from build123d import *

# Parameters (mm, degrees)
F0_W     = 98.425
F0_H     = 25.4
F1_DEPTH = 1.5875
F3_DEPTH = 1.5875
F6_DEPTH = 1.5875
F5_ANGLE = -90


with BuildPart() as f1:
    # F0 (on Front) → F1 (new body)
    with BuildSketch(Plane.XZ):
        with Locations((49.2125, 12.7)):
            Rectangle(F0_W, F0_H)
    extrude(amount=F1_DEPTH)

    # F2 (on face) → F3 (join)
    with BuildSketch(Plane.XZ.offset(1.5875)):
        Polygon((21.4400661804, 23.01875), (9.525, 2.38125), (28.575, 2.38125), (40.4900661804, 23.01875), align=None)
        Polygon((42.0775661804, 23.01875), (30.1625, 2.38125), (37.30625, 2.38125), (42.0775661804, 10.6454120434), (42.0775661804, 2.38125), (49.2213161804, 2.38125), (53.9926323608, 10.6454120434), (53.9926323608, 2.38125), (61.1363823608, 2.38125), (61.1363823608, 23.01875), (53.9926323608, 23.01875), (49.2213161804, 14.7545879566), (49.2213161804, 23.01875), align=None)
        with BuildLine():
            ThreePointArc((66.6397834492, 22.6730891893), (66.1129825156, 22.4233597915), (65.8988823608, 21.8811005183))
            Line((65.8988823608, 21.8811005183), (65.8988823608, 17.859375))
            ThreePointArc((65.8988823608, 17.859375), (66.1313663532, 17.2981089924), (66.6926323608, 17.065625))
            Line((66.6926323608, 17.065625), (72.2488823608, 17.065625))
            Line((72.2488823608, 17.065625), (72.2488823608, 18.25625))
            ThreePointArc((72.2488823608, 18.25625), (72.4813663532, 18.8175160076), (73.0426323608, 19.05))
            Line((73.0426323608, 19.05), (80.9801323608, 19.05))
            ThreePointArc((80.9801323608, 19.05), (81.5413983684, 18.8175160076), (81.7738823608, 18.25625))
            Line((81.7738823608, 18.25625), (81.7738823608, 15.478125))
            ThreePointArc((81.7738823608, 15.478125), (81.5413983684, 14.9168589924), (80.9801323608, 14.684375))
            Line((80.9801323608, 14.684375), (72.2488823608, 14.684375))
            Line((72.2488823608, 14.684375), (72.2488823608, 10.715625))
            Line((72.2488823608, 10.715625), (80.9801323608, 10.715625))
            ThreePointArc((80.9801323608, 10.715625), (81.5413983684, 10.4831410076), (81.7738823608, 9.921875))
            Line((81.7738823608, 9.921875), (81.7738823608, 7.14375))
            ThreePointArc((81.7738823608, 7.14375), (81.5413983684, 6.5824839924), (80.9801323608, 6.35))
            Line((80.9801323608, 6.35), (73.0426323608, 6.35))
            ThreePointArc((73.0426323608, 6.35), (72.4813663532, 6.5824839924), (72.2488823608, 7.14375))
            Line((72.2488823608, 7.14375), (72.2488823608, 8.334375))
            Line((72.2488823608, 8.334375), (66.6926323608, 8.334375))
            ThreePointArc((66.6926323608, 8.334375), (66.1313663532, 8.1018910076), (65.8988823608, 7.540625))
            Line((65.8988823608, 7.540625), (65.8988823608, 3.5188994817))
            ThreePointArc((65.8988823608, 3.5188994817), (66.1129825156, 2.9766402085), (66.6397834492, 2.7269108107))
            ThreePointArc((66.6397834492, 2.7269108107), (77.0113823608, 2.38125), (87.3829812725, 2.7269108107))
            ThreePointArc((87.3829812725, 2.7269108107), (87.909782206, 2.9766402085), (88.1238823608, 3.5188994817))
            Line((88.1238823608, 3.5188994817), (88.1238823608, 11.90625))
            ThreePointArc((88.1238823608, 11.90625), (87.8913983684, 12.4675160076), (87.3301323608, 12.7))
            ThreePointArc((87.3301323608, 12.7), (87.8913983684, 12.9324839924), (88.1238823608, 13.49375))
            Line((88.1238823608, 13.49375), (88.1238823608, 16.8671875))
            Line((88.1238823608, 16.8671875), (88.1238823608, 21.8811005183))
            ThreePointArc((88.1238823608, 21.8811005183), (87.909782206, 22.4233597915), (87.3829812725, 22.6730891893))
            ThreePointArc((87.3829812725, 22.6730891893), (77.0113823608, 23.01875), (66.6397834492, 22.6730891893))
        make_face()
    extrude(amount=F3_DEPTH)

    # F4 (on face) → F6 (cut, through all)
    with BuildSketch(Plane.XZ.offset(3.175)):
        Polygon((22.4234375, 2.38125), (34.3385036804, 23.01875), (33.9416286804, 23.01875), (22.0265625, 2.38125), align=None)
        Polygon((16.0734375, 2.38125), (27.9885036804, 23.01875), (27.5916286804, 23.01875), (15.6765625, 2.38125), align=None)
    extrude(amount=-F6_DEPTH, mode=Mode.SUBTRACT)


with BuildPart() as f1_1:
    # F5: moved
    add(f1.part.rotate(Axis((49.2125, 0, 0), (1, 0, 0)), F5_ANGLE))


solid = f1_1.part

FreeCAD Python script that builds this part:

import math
import FreeCAD as App
import Part
import Sketcher
Q = App.Units.Quantity


def add_polygon(sketch, points):
    """Adds a closed chain of lines whose ends are joined by coincident constraints."""
    first, n = sketch.GeometryCount, len(points)
    for a, b in zip(points, points[1:] + points[:1]):
        sketch.addGeometry(Part.LineSegment(App.Vector(*a, 0), App.Vector(*b, 0)), False)
    for i in range(n):
        sketch.addConstraint(Sketcher.Constraint("Coincident", first + i, 2, first + (i + 1) % n, 1))

doc = App.newDocument("Part")
params = doc.addObject("Spreadsheet::Sheet", "Params")
for row, (alias, value) in enumerate([
    ("sketch1_height", "1 in"),
    ("sketch1_width", "3.875 in"),
    ("pad1_length", "0.0625 in"),
    ("sketch2_radius", "0.03125 in"),
    ("sketch2_width", "0.75 in"),
    ("sketch2_width2", "0.28125 in"),
    ("sketch2_width3", "0.21875 in"),
    ("sketch2_width4", "0.3125 in"),
    ("pad2_length", "0.0625 in"),
    ("sketch3_width", "0.015625 in"),
    ("pocket1_length", "0.0625 in"),
], start=1):
    params.set(f"A{row}", alias)
    params.set(f"B{row}", "=" + value)
    params.setAlias(f"B{row}", alias)

body = doc.addObject("PartDesign::Body", "Body")

sketch1 = doc.addObject("Sketcher::SketchObject", "Sketch")
body.addObject(sketch1)
sketch1.AttachmentSupport = (doc.XZ_Plane, [""])
sketch1.MapMode = "FlatFace"
add_polygon(sketch1, [(0, 25.4), (0, 0), (98.425, 0), (98.425, 25.4)])
sketch1.addConstraint(Sketcher.Constraint("Vertical", 0))
sketch1.addConstraint(Sketcher.Constraint("Horizontal", 1))
sketch1.addConstraint(Sketcher.Constraint("Vertical", 2))
sketch1.addConstraint(Sketcher.Constraint("Horizontal", 3))
sketch1.addConstraint(Sketcher.Constraint("Coincident", 0, 2, -1, 1))
sketch1.addConstraint(Sketcher.Constraint("DistanceY", 0, 2, 0, 1, Q("1 in")))
sketch1.addConstraint(Sketcher.Constraint("DistanceX", 1, 1, 1, 2, Q("3.875 in")))
sketch1.setExpression("Constraints[9]", "Params.sketch1_height")
sketch1.setExpression("Constraints[10]", "Params.sketch1_width")
pad1 = doc.addObject("PartDesign::Pad", "Pad")
body.addObject(pad1)
pad1.Profile = sketch1
pad1.setExpression("Length", "Params.pad1_length")

sketch2 = doc.addObject("Sketcher::SketchObject", "Sketch001")
body.addObject(sketch2)
sketch2.AttachmentSupport = (doc.XZ_Plane, [""])
sketch2.MapMode = "FlatFace"
sketch2.AttachmentOffset = App.Placement(App.Vector(0, 0, 0.0625 * 25.4), App.Rotation())
add_polygon(sketch2, [(21.440066, 23.01875), (9.525, 2.38125), (28.575, 2.38125), (40.490066, 23.01875)])
add_polygon(sketch2, [(42.077566, 23.01875), (30.1625, 2.38125), (37.30625, 2.38125), (42.077566, 10.645412), (42.077566, 2.38125), (49.221316, 2.38125), (53.992632, 10.645412), (53.992632, 2.38125), (61.136382, 2.38125), (61.136382, 23.01875), (53.992632, 23.01875), (49.221316, 14.754588), (49.221316, 23.01875)])
sketch2.addGeometry(Part.ArcOfCircle(Part.Circle(App.Vector(66.692632, 21.881101, 0), App.Vector(0, 0, 1), 0.79375), math.radians(93.817652), math.radians(180)), False)
sketch2.addGeometry(Part.LineSegment(App.Vector(65.898882, 21.881101, 0), App.Vector(65.898882, 17.859375, 0)), False)
sketch2.addGeometry(Part.ArcOfCircle(Part.Circle(App.Vector(66.692632, 17.859375, 0), App.Vector(0, 0, 1), 0.79375), math.radians(180), math.radians(270)), False)
sketch2.addGeometry(Part.LineSegment(App.Vector(66.692632, 17.065625, 0), App.Vector(72.248882, 17.065625, 0)), False)
sketch2.addGeometry(Part.LineSegment(App.Vector(72.248882, 17.065625, 0), App.Vector(72.248882, 18.25625, 0)), False)
sketch2.addGeometry(Part.ArcOfCircle(Part.Circle(App.Vector(73.042632, 18.25625, 0), App.Vector(0, 0, 1), 0.79375), math.radians(90), math.radians(180)), False)
sketch2.addGeometry(Part.LineSegment(App.Vector(73.042632, 19.05, 0), App.Vector(80.980132, 19.05, 0)), False)
sketch2.addGeometry(Part.ArcOfCircle(Part.Circle(App.Vector(80.980132, 18.25625, 0), App.Vector(0, 0, 1), 0.79375), math.radians(0), math.radians(90)), False)
sketch2.addGeometry(Part.LineSegment(App.Vector(81.773882, 18.25625, 0), App.Vector(81.773882, 15.478125, 0)), False)
sketch2.addGeometry(Part.ArcOfCircle(Part.Circle(App.Vector(80.980132, 15.478125, 0), App.Vector(0, 0, 1), 0.79375), math.radians(-90), math.radians(0)), False)
sketch2.addGeometry(Part.LineSegment(App.Vector(80.980132, 14.684375, 0), App.Vector(72.248882, 14.684375, 0)), False)
sketch2.addGeometry(Part.LineSegment(App.Vector(72.248882, 14.684375, 0), App.Vector(72.248882, 10.715625, 0)), False)
sketch2.addGeometry(Part.LineSegment(App.Vector(72.248882, 10.715625, 0), App.Vector(80.980132, 10.715625, 0)), False)
sketch2.addGeometry(Part.ArcOfCircle(Part.Circle(App.Vector(80.980132, 9.921875, 0), App.Vector(0, 0, 1), 0.79375), math.radians(0), math.radians(90)), False)
sketch2.addGeometry(Part.LineSegment(App.Vector(81.773882, 9.921875, 0), App.Vector(81.773882, 7.14375, 0)), False)
sketch2.addGeometry(Part.ArcOfCircle(Part.Circle(App.Vector(80.980132, 7.14375, 0), App.Vector(0, 0, 1), 0.79375), math.radians(-90), math.radians(0)), False)
sketch2.addGeometry(Part.LineSegment(App.Vector(80.980132, 6.35, 0), App.Vector(73.042632, 6.35, 0)), False)
sketch2.addGeometry(Part.ArcOfCircle(Part.Circle(App.Vector(73.042632, 7.14375, 0), App.Vector(0, 0, 1), 0.79375), math.radians(180), math.radians(270)), False)
sketch2.addGeometry(Part.LineSegment(App.Vector(72.248882, 7.14375, 0), App.Vector(72.248882, 8.334375, 0)), False)
sketch2.addGeometry(Part.LineSegment(App.Vector(72.248882, 8.334375, 0), App.Vector(66.692632, 8.334375, 0)), False)
sketch2.addGeometry(Part.ArcOfCircle(Part.Circle(App.Vector(66.692632, 7.540625, 0), App.Vector(0, 0, 1), 0.79375), math.radians(90), math.radians(180)), False)
sketch2.addGeometry(Part.LineSegment(App.Vector(65.898882, 7.540625, 0), App.Vector(65.898882, 3.518899, 0)), False)
sketch2.addGeometry(Part.ArcOfCircle(Part.Circle(App.Vector(66.692632, 3.518899, 0), App.Vector(0, 0, 1), 0.79375), math.radians(180), math.radians(266.182348)), False)
sketch2.addGeometry(Part.ArcOfCircle(Part.Circle(App.Vector(77.011382, 158.154687, 0), App.Vector(0, 0, 1), 155.773437), math.radians(-93.817652), math.radians(-86.182348)), False)
sketch2.addGeometry(Part.ArcOfCircle(Part.Circle(App.Vector(87.330132, 3.518899, 0), App.Vector(0, 0, 1), 0.79375), math.radians(-86.182348), math.radians(0)), False)
sketch2.addGeometry(Part.LineSegment(App.Vector(88.123882, 3.518899, 0), App.Vector(88.123882, 11.90625, 0)), False)
sketch2.addGeometry(Part.ArcOfCircle(Part.Circle(App.Vector(87.330132, 11.90625, 0), App.Vector(0, 0, 1), 0.79375), math.radians(0), math.radians(90)), False)
sketch2.addGeometry(Part.ArcOfCircle(Part.Circle(App.Vector(87.330132, 13.49375, 0), App.Vector(0, 0, 1), 0.79375), math.radians(-90), math.radians(0)), False)
sketch2.addGeometry(Part.LineSegment(App.Vector(88.123882, 13.49375, 0), App.Vector(88.123882, 21.881101, 0)), False)
sketch2.addGeometry(Part.ArcOfCircle(Part.Circle(App.Vector(87.330132, 21.881101, 0), App.Vector(0, 0, 1), 0.79375), math.radians(0), math.radians(86.182348)), False)
sketch2.addGeometry(Part.ArcOfCircle(Part.Circle(App.Vector(77.011382, -132.754687, 0), App.Vector(0, 0, 1), 155.773437), math.radians(86.182348), math.radians(93.817652)), False)
sketch2.addConstraint(Sketcher.Constraint("Tangent", 17, 2, 18, 1))
sketch2.addConstraint(Sketcher.Constraint("Tangent", 18, 2, 19, 1))
sketch2.addConstraint(Sketcher.Constraint("Tangent", 19, 2, 20, 1))
sketch2.addConstraint(Sketcher.Constraint("Coincident", 20, 2, 21, 1))
sketch2.addConstraint(Sketcher.Constraint("Tangent", 21, 2, 22, 2))
sketch2.addConstraint(Sketcher.Constraint("Tangent", 22, 1, 23, 1))
sketch2.addConstraint(Sketcher.Constraint("Tangent", 23, 2, 24, 2))
sketch2.addConstraint(Sketcher.Constraint("Tangent", 24, 1, 25, 1))
sketch2.addConstraint(Sketcher.Constraint("Tangent", 25, 2, 26, 2))
sketch2.addConstraint(Sketcher.Constraint("Tangent", 26, 1, 27, 1))
sketch2.addConstraint(Sketcher.Constraint("Coincident", 27, 2, 28, 1))
sketch2.addConstraint(Sketcher.Constraint("Coincident", 28, 2, 29, 1))
sketch2.addConstraint(Sketcher.Constraint("Tangent", 29, 2, 30, 2))
sketch2.addConstraint(Sketcher.Constraint("Tangent", 30, 1, 31, 1))
sketch2.addConstraint(Sketcher.Constraint("Tangent", 31, 2, 32, 2))
sketch2.addConstraint(Sketcher.Constraint("Tangent", 32, 1, 33, 1))
sketch2.addConstraint(Sketcher.Constraint("Tangent", 33, 2, 34, 2))
sketch2.addConstraint(Sketcher.Constraint("Tangent", 34, 1, 35, 1))
sketch2.addConstraint(Sketcher.Constraint("Coincident", 35, 2, 36, 1))
sketch2.addConstraint(Sketcher.Constraint("Tangent", 36, 2, 37, 1))
sketch2.addConstraint(Sketcher.Constraint("Tangent", 37, 2, 38, 1))
sketch2.addConstraint(Sketcher.Constraint("Tangent", 38, 2, 39, 1))
sketch2.addConstraint(Sketcher.Constraint("Tangent", 39, 2, 40, 1))
sketch2.addConstraint(Sketcher.Constraint("Tangent", 40, 2, 41, 1))
sketch2.addConstraint(Sketcher.Constraint("Tangent", 41, 2, 42, 1))
sketch2.addConstraint(Sketcher.Constraint("Tangent", 42, 2, 43, 1))
sketch2.addConstraint(Sketcher.Constraint("Tangent", 43, 2, 44, 1))
sketch2.addConstraint(Sketcher.Constraint("Tangent", 44, 2, 45, 1))
sketch2.addConstraint(Sketcher.Constraint("Tangent", 45, 2, 46, 1))
sketch2.addConstraint(Sketcher.Constraint("Tangent", 46, 2, 47, 1))
sketch2.addConstraint(Sketcher.Constraint("Tangent", 47, 2, 17, 1))
sketch2.addConstraint(Sketcher.Constraint("Horizontal", 1))
sketch2.addConstraint(Sketcher.Constraint("Horizontal", 3))
sketch2.addConstraint(Sketcher.Constraint("Horizontal", 5))
sketch2.addConstraint(Sketcher.Constraint("Vertical", 7))
sketch2.addConstraint(Sketcher.Constraint("Horizontal", 8))
sketch2.addConstraint(Sketcher.Constraint("Vertical", 10))
sketch2.addConstraint(Sketcher.Constraint("Horizontal", 11))
sketch2.addConstraint(Sketcher.Constraint("Vertical", 12))
sketch2.addConstraint(Sketcher.Constraint("Horizontal", 13))
sketch2.addConstraint(Sketcher.Constraint("Vertical", 15))
sketch2.addConstraint(Sketcher.Constraint("Horizontal", 16))
sketch2.addConstraint(Sketcher.Constraint("Vertical", 18))
sketch2.addConstraint(Sketcher.Constraint("Horizontal", 20))
sketch2.addConstraint(Sketcher.Constraint("Vertical", 21))
sketch2.addConstraint(Sketcher.Constraint("Horizontal", 23))
sketch2.addConstraint(Sketcher.Constraint("Vertical", 25))
sketch2.addConstraint(Sketcher.Constraint("Horizontal", 27))
sketch2.addConstraint(Sketcher.Constraint("Vertical", 28))
sketch2.addConstraint(Sketcher.Constraint("Horizontal", 29))
sketch2.addConstraint(Sketcher.Constraint("Vertical", 31))
sketch2.addConstraint(Sketcher.Constraint("Horizontal", 33))
sketch2.addConstraint(Sketcher.Constraint("Vertical", 35))
sketch2.addConstraint(Sketcher.Constraint("Horizontal", 36))
sketch2.addConstraint(Sketcher.Constraint("Vertical", 38))
sketch2.addConstraint(Sketcher.Constraint("Vertical", 42))
sketch2.addConstraint(Sketcher.Constraint("Vertical", 45))
sketch2.addConstraint(Sketcher.Constraint("Equal", 17, 19))
sketch2.addConstraint(Sketcher.Constraint("Equal", 19, 22))
sketch2.addConstraint(Sketcher.Constraint("Equal", 22, 24))
sketch2.addConstraint(Sketcher.Constraint("Equal", 24, 26))
sketch2.addConstraint(Sketcher.Constraint("Equal", 26, 30))
sketch2.addConstraint(Sketcher.Constraint("Equal", 30, 32))
sketch2.addConstraint(Sketcher.Constraint("Equal", 32, 34))
sketch2.addConstraint(Sketcher.Constraint("Equal", 34, 37))
sketch2.addConstraint(Sketcher.Constraint("Equal", 37, 39))
sketch2.addConstraint(Sketcher.Constraint("Equal", 39, 41))
sketch2.addConstraint(Sketcher.Constraint("Equal", 41, 43))
sketch2.addConstraint(Sketcher.Constraint("Equal", 43, 44))
sketch2.addConstraint(Sketcher.Constraint("Equal", 44, 46))
sketch2.addConstraint(Sketcher.Constraint("Equal", 40, 47))
sketch2.addConstraint(Sketcher.Constraint("Parallel", 0, 2))
sketch2.addConstraint(Sketcher.Constraint("Parallel", 2, 4))
sketch2.addConstraint(Sketcher.Constraint("Parallel", 4, 6))
sketch2.addConstraint(Sketcher.Constraint("Parallel", 6, 9))
sketch2.addConstraint(Sketcher.Constraint("Parallel", 9, 14))
sketch2.addConstraint(Sketcher.Constraint("Horizontal", 39, 3, 41, 3))
sketch2.addConstraint(Sketcher.Constraint("Horizontal", 17, 3, 46, 3))
sketch2.addConstraint(Sketcher.Constraint("Horizontal", 1, 2, 4, 2))
sketch2.addConstraint(Sketcher.Constraint("Horizontal", 5, 2, 7, 2))
sketch2.addConstraint(Sketcher.Constraint("Horizontal", 6, 2, 9, 2))
sketch2.addConstraint(Sketcher.Constraint("Horizontal", 8, 2, 10, 2))
sketch2.addConstraint(Sketcher.Constraint("Horizontal", 3, 2, 12, 2))
sketch2.addConstraint(Sketcher.Constraint("Horizontal", 13, 2, 15, 2))
sketch2.addConstraint(Sketcher.Constraint("Vertical", 26, 3, 30, 3))
sketch2.addConstraint(Sketcher.Constraint("Vertical", 22, 3, 34, 3))
sketch2.addConstraint(Sketcher.Constraint("Vertical", 19, 3, 37, 3))
sketch2.addConstraint(Sketcher.Constraint("Vertical", 43, 3, 44, 3))
sketch2.addConstraint(Sketcher.Constraint("Vertical", 10, 2, 13, 2))
sketch2.addConstraint(Sketcher.Constraint("Vertical", 8, 2, 14, 2))
sketch2.addConstraint(Sketcher.Constraint("Vertical", 7, 2, 16, 2))
sketch2.addConstraint(Sketcher.Constraint("Vertical", 21, 2, 27, 2))
sketch2.addConstraint(Sketcher.Constraint("Equal", 5, 8))
sketch2.addConstraint(Sketcher.Constraint("Equal", 8, 11))
sketch2.addConstraint(Sketcher.Constraint("Equal", 25, 31))
sketch2.addConstraint(Sketcher.Constraint("Equal", 21, 35))
sketch2.addConstraint(Sketcher.Constraint("Equal", 18, 38))
sketch2.addConstraint(Sketcher.Constraint("Equal", 42, 45))
sketch2.addConstraint(Sketcher.Constraint("Angle", 0, Q("-120 deg")))
sketch2.addConstraint(Sketcher.Constraint("Radius", 17, Q("0.03125 in")))
sketch2.addConstraint(Sketcher.Constraint("DistanceX", 1, 1, 1, 2, Q("0.75 in")))
sketch2.addConstraint(Sketcher.Constraint("DistanceY", -1, 1, 43, 2, Q("0.5 in")))
sketch2.addConstraint(Sketcher.Constraint("DistanceX", 5, 1, 5, 2, Q("0.28125 in")))
sketch2.addConstraint(Sketcher.Constraint("DistanceX", 20, 1, 20, 2, Q("0.21875 in")))
sketch2.addConstraint(Sketcher.Constraint("DistanceX", 23, 1, 23, 2, Q("0.3125 in")))
sketch2.addConstraint(Sketcher.Constraint("DistanceY", 12, 1, 12, 2, Q("0.8125 in")))
sketch2.addConstraint(Sketcher.Constraint("DistanceY", 21, 1, 21, 2, Q("0.046875 in")))
sketch2.addConstraint(Sketcher.Constraint("DistanceY", 25, 2, 25, 1, Q("0.109375 in")))
sketch2.addConstraint(Sketcher.Constraint("DistanceY", 28, 2, 28, 1, Q("0.15625 in")))
sketch2.addConstraint(Sketcher.Constraint("DistanceX", -1, 1, 0, 2, Q("0.375 in")))
sketch2.addConstraint(Sketcher.Constraint("DistanceY", -1, 1, 0, 2, Q("0.09375 in")))
sketch2.addConstraint(Sketcher.Constraint("DistanceX", -1, 1, 4, 2, Q("1.1875 in")))
sketch2.addConstraint(Sketcher.Constraint("Radius", 40, Q("155.773437 mm")))
sketch2.addConstraint(Sketcher.Constraint("DistanceY", 42, 1, 42, 2, Q("8.387351 mm")))
sketch2.addConstraint(Sketcher.Constraint("DistanceX", -1, 1, 40, 2, Q("87.382981 mm")))
sketch2.addConstraint(Sketcher.Constraint("DistanceX", -1, 1, 17, 3, Q("66.692632 mm")))
sketch2.setExpression("Constraints[116]", "Params.sketch2_radius")
sketch2.setExpression("Constraints[117]", "Params.sketch2_width")
sketch2.setExpression("Constraints[119]", "Params.sketch2_width2")
sketch2.setExpression("Constraints[120]", "Params.sketch2_width3")
sketch2.setExpression("Constraints[121]", "Params.sketch2_width4")
pad2 = doc.addObject("PartDesign::Pad", "Pad001")
body.addObject(pad2)
pad2.Profile = sketch2
pad2.setExpression("Length", "Params.pad2_length")

sketch3 = doc.addObject("Sketcher::SketchObject", "Sketch002")
body.addObject(sketch3)
sketch3.AttachmentSupport = (doc.XZ_Plane, [""])
sketch3.MapMode = "FlatFace"
sketch3.AttachmentOffset = App.Placement(App.Vector(0, 0, 0.125 * 25.4), App.Rotation())
add_polygon(sketch3, [(22.423437, 2.38125), (34.338504, 23.01875), (33.941629, 23.01875), (22.026563, 2.38125)])
add_polygon(sketch3, [(16.073438, 2.38125), (27.988504, 23.01875), (27.591629, 23.01875), (15.676562, 2.38125)])
sketch3.addConstraint(Sketcher.Constraint("Horizontal", 1))
sketch3.addConstraint(Sketcher.Constraint("Horizontal", 3))
sketch3.addConstraint(Sketcher.Constraint("Horizontal", 5))
sketch3.addConstraint(Sketcher.Constraint("Horizontal", 7))
sketch3.addConstraint(Sketcher.Constraint("Parallel", 0, 2))
sketch3.addConstraint(Sketcher.Constraint("Parallel", 2, 4))
sketch3.addConstraint(Sketcher.Constraint("Parallel", 4, 6))
sketch3.addConstraint(Sketcher.Constraint("Horizontal", 1, 2, 4, 2))
sketch3.addConstraint(Sketcher.Constraint("Horizontal", 3, 2, 6, 2))
sketch3.addConstraint(Sketcher.Constraint("Equal", 3, 5))
sketch3.addConstraint(Sketcher.Constraint("Angle", 0, Q("60 deg")))
sketch3.addConstraint(Sketcher.Constraint("DistanceX", 1, 2, 1, 1, Q("0.015625 in")))
sketch3.addConstraint(Sketcher.Constraint("DistanceX", 4, 2, 0, 2, Q("0.25 in")))
sketch3.addConstraint(Sketcher.Constraint("DistanceY", -1, 1, 0, 2, Q("0.90625 in")))
sketch3.addConstraint(Sketcher.Constraint("DistanceY", -1, 1, 2, 2, Q("0.09375 in")))
sketch3.addConstraint(Sketcher.Constraint("DistanceX", -1, 1, 1, 2, Q("33.941629 mm")))
sketch3.setExpression("Constraints[19]", "Params.sketch3_width")
pocket1 = doc.addObject("PartDesign::Pocket", "Pocket")
body.addObject(pocket1)
pocket1.Profile = sketch3
pocket1.setExpression("Length", "Params.pocket1_length")
body2 = doc.addObject("PartDesign::Body", "Body001")
doc.recompute()

body.Placement = App.Placement(App.Vector(0, 0, 0), App.Rotation(App.Vector(1, 0, 0), 270))
boolean = doc.addObject("PartDesign::Boolean", "Boolean")
body2.addObject(boolean)
boolean.Type = "Fuse"
boolean.addObjects([body])

doc.recompute()
